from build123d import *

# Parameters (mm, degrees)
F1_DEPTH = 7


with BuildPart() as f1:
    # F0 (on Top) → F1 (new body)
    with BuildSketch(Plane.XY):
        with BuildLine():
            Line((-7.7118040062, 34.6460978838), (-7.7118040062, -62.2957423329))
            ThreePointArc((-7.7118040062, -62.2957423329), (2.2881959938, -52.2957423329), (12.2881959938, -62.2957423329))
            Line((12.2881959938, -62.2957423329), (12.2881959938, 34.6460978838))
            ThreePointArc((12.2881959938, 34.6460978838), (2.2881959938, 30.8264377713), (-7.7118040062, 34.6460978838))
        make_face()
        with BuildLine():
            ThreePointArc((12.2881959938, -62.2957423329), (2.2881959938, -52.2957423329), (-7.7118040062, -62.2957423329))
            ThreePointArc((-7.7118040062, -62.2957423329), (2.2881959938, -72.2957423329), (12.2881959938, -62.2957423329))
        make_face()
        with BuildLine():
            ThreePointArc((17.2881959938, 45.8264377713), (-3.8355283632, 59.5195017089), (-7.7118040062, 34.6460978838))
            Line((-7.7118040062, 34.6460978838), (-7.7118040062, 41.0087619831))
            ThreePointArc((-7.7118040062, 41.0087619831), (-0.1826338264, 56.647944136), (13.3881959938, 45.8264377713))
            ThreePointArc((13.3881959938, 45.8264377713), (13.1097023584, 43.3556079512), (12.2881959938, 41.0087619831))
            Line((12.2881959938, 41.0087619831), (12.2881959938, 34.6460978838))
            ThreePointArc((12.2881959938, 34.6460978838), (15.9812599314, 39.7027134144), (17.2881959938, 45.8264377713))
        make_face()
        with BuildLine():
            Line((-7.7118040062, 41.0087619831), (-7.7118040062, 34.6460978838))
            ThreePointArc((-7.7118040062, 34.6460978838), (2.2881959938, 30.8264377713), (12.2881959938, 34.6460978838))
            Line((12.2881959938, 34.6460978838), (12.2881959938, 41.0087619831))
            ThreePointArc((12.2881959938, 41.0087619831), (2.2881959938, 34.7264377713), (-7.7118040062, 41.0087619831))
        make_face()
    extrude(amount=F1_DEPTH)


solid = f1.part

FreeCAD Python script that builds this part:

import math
import FreeCAD as App
import Part
import Sketcher
from FreeCAD import Vector
Q = App.Units.Quantity

doc = App.newDocument("Part")
body = doc.addObject("PartDesign::Body", "Body")

# Sketch on XY plane
sketch1 = body.newObject("Sketcher::SketchObject", "Sketch")
sketch1.AttachmentSupport = (doc.getObject("XY_Plane"), [""])
sketch1.MapMode = "FlatFace"
sketch1.addGeometry([
    Part.LineSegment(Vector(-7.7, 34.6, 0), Vector(-7.7, -62.3, 0)),  # 0
    Part.ArcOfCircle(Part.Circle(Vector(2.3, -62.3, 0), Vector(0, 0, 1), 10), math.radians(180), math.radians(360)),  # 1
    Part.LineSegment(Vector(12.3, -62.3, 0), Vector(12.3, 34.6, 0)),  # 2
    Part.ArcOfCircle(Part.Circle(Vector(2.3, 45.8, 0), Vector(0, 0, 1), 15), math.radians(-48), math.radians(0)),  # 3
    Part.ArcOfCircle(Part.Circle(Vector(2.3, 45.8, 0), Vector(0, 0, 1), 15), math.radians(0), math.radians(228)),  # 4
    Part.ArcOfCircle(Part.Circle(Vector(2.3, 45.8, 0), Vector(0, 0, 1), 11.1), math.radians(-154), math.radians(-26)),  # 5
    Part.ArcOfCircle(Part.Circle(Vector(2.3, 45.8, 0), Vector(0, 0, 1), 11.1), math.radians(0), math.radians(206)),  # 6
    Part.ArcOfCircle(Part.Circle(Vector(2.3, 45.8, 0), Vector(0, 0, 1), 11.1), math.radians(-26), math.radians(0)),  # 7
], False)
sketch1.addConstraint([
    Sketcher.Constraint("Tangent", 0, 2, 1, 1),
    Sketcher.Constraint("Tangent", 1, 2, 2, 1),
    Sketcher.Constraint("Coincident", 2, 2, 3, 1),
    Sketcher.Constraint("Tangent", 3, 2, 4, 1),
    Sketcher.Constraint("Coincident", 4, 2, 0, 1),
    Sketcher.Constraint("Tangent", 5, 1, 6, 2),
    Sketcher.Constraint("Tangent", 6, 1, 7, 2),
    Sketcher.Constraint("Tangent", 7, 1, 5, 2),
    Sketcher.Constraint("Vertical", 0),
    Sketcher.Constraint("Vertical", 2),
    Sketcher.Constraint("Coincident", 5, 3, 3, 3),
    Sketcher.Constraint("Equal", 3, 4),
    Sketcher.Constraint("Horizontal", 7, 3, 3, 2),
    Sketcher.Constraint("Horizontal", 2, 2, 4, 2),
    Sketcher.Constraint("Horizontal", 3, 2, 6, 1),
    Sketcher.Constraint("Horizontal", 5, 1, 7, 1),
    Sketcher.Constraint("Vertical", 4, 2, 5, 1),
    Sketcher.Constraint("Radius", 1, Q("10 mm")),
    Sketcher.Constraint("Radius", 3, Q("15 mm")),
    Sketcher.Constraint("Radius", 5, Q("11.1 mm")),
    Sketcher.Constraint("DistanceY", 0, 2, 0, 1, Q("96.94184 mm")),
    Sketcher.Constraint("DistanceY", -1, 1, 5, 1, Q("41.008762 mm")),
    Sketcher.Constraint("DistanceX", -1, 1, 1, 3, Q("2.288196 mm")),
])
pad1 = body.newObject("PartDesign::Pad", "Pad")
pad1.Profile = sketch1
pad1.Length = 7

doc.recompute()
